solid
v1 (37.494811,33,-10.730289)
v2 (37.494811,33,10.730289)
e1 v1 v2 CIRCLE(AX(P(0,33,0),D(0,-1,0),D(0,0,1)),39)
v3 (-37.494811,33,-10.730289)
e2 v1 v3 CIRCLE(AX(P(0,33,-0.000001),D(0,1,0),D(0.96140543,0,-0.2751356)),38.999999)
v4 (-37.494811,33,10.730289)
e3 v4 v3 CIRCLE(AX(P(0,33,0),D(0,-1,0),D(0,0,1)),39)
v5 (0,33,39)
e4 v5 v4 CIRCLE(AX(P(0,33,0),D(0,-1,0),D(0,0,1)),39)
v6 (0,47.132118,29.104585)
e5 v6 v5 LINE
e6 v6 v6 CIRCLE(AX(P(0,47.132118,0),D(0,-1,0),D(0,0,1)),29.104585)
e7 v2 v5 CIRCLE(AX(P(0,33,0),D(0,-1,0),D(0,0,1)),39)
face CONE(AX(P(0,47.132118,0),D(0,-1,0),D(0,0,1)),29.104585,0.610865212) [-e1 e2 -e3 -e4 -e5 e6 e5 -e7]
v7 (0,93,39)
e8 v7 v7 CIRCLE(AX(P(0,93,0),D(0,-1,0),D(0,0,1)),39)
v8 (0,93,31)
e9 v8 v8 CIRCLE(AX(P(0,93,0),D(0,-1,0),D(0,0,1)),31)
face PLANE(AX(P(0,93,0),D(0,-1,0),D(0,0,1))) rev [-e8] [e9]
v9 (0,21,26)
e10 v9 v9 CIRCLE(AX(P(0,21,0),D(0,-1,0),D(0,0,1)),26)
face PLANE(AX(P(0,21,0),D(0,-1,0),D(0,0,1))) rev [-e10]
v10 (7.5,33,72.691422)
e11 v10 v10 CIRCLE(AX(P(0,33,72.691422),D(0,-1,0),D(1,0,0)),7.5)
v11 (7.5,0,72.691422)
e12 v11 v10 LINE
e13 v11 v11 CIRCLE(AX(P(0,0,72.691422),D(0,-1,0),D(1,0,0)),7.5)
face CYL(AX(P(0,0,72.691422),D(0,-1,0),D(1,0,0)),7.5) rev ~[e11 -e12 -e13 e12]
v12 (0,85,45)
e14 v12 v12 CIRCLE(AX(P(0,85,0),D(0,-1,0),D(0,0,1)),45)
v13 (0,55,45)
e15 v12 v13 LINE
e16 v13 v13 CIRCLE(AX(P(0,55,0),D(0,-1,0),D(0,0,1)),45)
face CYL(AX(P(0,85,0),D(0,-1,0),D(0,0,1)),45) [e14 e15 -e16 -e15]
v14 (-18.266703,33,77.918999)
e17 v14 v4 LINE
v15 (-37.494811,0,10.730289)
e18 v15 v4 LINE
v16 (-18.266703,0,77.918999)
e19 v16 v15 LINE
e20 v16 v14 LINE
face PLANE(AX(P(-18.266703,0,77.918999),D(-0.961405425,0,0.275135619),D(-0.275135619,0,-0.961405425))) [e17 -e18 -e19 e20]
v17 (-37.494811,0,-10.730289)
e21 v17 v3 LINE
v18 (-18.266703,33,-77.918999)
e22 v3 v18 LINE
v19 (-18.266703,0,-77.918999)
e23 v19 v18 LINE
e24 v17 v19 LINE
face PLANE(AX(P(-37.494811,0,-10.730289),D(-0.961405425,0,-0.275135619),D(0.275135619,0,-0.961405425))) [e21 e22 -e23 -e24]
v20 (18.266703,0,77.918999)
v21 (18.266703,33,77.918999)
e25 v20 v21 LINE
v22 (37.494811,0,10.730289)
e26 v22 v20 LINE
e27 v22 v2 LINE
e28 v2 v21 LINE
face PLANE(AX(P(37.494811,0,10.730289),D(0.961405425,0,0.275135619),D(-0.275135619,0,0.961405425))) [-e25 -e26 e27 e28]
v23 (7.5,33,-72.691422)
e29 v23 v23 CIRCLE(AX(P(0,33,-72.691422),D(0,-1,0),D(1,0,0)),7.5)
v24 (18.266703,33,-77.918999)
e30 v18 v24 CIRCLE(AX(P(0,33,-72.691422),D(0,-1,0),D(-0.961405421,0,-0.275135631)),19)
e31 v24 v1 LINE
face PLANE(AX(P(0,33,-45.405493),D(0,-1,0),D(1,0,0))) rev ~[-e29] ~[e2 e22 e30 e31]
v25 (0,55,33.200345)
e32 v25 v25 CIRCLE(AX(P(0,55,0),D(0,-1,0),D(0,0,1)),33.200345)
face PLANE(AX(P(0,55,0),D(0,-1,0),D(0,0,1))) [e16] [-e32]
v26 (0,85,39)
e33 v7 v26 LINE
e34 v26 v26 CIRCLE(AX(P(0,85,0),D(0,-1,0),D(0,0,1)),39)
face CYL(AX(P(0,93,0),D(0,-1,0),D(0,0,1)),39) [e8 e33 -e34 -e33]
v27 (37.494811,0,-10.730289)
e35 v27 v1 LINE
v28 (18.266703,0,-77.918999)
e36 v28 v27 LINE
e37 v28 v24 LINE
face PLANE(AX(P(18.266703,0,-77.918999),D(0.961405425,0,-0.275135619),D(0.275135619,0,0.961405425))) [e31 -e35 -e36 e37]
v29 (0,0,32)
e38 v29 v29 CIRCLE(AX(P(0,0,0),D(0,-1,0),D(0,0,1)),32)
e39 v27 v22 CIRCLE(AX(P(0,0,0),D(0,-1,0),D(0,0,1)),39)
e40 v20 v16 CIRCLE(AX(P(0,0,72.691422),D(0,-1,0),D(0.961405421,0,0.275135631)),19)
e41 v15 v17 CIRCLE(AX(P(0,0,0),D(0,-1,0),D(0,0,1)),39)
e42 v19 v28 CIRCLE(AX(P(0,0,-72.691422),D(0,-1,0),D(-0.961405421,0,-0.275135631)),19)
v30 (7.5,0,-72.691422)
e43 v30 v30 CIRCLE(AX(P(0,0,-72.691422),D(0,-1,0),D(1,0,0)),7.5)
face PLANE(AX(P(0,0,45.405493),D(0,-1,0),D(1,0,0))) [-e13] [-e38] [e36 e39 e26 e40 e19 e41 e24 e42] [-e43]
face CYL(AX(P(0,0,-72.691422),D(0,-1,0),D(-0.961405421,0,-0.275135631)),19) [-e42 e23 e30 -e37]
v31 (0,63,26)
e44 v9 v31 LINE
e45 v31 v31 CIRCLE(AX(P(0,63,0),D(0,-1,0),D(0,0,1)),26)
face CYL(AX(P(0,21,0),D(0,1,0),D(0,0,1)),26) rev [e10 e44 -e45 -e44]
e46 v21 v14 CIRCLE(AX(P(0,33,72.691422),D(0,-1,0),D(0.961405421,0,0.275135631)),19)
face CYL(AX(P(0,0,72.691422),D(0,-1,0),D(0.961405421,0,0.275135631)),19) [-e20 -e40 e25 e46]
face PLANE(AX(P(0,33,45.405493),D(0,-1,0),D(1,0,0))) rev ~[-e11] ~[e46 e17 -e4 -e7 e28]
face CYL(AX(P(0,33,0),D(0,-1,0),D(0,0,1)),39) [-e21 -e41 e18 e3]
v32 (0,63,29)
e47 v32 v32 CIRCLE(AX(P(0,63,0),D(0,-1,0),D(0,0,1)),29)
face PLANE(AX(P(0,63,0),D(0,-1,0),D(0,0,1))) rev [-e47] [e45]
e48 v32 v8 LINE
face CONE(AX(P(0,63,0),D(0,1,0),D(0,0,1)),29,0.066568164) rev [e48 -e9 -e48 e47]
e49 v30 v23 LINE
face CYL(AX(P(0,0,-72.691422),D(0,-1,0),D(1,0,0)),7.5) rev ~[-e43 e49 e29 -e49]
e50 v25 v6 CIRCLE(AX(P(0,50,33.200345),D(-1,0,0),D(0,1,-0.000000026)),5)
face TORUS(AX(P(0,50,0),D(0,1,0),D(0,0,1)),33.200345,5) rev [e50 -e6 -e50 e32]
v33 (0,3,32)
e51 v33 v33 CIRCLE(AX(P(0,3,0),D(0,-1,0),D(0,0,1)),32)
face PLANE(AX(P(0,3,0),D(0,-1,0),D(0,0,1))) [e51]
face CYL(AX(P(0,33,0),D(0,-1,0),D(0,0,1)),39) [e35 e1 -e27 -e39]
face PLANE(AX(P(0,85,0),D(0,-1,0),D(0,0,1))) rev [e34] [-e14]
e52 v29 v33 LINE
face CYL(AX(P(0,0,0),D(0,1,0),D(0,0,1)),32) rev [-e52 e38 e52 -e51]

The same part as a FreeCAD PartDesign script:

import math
import FreeCAD as App
import Part
import Sketcher

V = App.Vector
Q = App.Units.Quantity

doc = App.newDocument("Part")
body = doc.addObject("PartDesign::Body", "Body")

sketch1 = body.newObject("Sketcher::SketchObject", "Sketch")
sketch1.AttachmentSupport = (doc.getObject("YZ_Plane"), [""])
sketch1.MapMode = "FlatFace"
sketch1.addGeometry([
    Part.LineSegment(V(3, 32, 0), V(3, 0, 0)),
    Part.LineSegment(V(3, 0, 0), V(21, 0, 0)),
    Part.LineSegment(V(21, 0, 0), V(21, 26, 0)),
    Part.LineSegment(V(21, 26, 0), V(63, 26, 0)),
    Part.LineSegment(V(63, 26, 0), V(63, 29, 0)),
    Part.LineSegment(V(63, 29, 0), V(93, 31, 0)),
    Part.LineSegment(V(93, 31, 0), V(93, 39, 0)),
    Part.LineSegment(V(93, 39, 0), V(85, 39, 0)),
    Part.LineSegment(V(85, 39, 0), V(85, 45, 0)),
    Part.LineSegment(V(85, 45, 0), V(55, 45, 0)),
    Part.LineSegment(V(55, 45, 0), V(55, 33.2, 0)),
    Part.ArcOfCircle(Part.Circle(V(50, 33.2, 0), V(0, 0, 1), 5), math.radians(-125), math.radians(0)),
    Part.LineSegment(V(47.1, 29.1, 0), V(33, 39, 0)),
    Part.LineSegment(V(33, 39, 0), V(0, 39, 0)),
    Part.LineSegment(V(0, 39, 0), V(0, 32, 0)),
    Part.LineSegment(V(0, 32, 0), V(3, 32, 0)),
], False)
sketch1.addConstraint([
    Sketcher.Constraint("Coincident", 0, 2, 1, 1),
    Sketcher.Constraint("Coincident", 1, 2, 2, 1),
    Sketcher.Constraint("Coincident", 2, 2, 3, 1),
    Sketcher.Constraint("Coincident", 3, 2, 4, 1),
    Sketcher.Constraint("Coincident", 4, 2, 5, 1),
    Sketcher.Constraint("Coincident", 5, 2, 6, 1),
    Sketcher.Constraint("Coincident", 6, 2, 7, 1),
    Sketcher.Constraint("Coincident", 7, 2, 8, 1),
    Sketcher.Constraint("Coincident", 8, 2, 9, 1),
    Sketcher.Constraint("Coincident", 9, 2, 10, 1),
    Sketcher.Constraint("Tangent", 10, 2, 11, 2),
    Sketcher.Constraint("Tangent", 11, 1, 12, 1),
    Sketcher.Constraint("Coincident", 12, 2, 13, 1),
    Sketcher.Constraint("Coincident", 13, 2, 14, 1),
    Sketcher.Constraint("Coincident", 14, 2, 15, 1),
    Sketcher.Constraint("Coincident", 15, 2, 0, 1),
    Sketcher.Constraint("Vertical", 0),
    Sketcher.Constraint("Horizontal", 1),
    Sketcher.Constraint("Vertical", 2),
    Sketcher.Constraint("Horizontal", 3),
    Sketcher.Constraint("Vertical", 4),
    Sketcher.Constraint("Vertical", 6),
    Sketcher.Constraint("Horizontal", 7),
    Sketcher.Constraint("Vertical", 8),
    Sketcher.Constraint("Horizontal", 9),
    Sketcher.Constraint("Vertical", 10),
    Sketcher.Constraint("Horizontal", 13),
    Sketcher.Constraint("Vertical", 14),
    Sketcher.Constraint("Horizontal", 15),
    Sketcher.Constraint("PointOnObject", 0, 2, -1),
    Sketcher.Constraint("PointOnObject", 13, 2, -2),
    Sketcher.Constraint("Horizontal", 7, 2, 12, 2),
    Sketcher.Constraint("Equal", 15, 4),
    Sketcher.Constraint("Equal", 7, 6),
    Sketcher.Constraint("Radius", 11, 5.0),
    Sketcher.Constraint("DistanceX", 1, 1, 1, 2, 18.0),
    Sketcher.Constraint("DistanceX", 3, 1, 3, 2, 42.0),
    Sketcher.Constraint("DistanceX", 7, 2, 7, 1, 8.0),
    Sketcher.Constraint("DistanceX", 9, 2, 9, 1, 30.0),
    Sketcher.Constraint("DistanceX", 13, 2, 13, 1, 33.0),
    Sketcher.Constraint("DistanceX", 15, 1, 15, 2, 3.0),
    Sketcher.Constraint("DistanceY", 0, 2, 0, 1, 32.0),
    Sketcher.Constraint("DistanceY", 2, 1, 2, 2, 26.0),
    Sketcher.Constraint("DistanceY", 8, 1, 8, 2, 6.0),
    Sketcher.Constraint("DistanceY", 14, 2, 14, 1, 7.0),
    Sketcher.Constraint("Angle", 12, Q("145.000002 deg")),
    Sketcher.Constraint("DistanceX", -1, 1, 11, 3, 50.0),
])
revolution = body.newObject("PartDesign::Revolution", "Revolution")
revolution.Profile = sketch1
revolution.ReferenceAxis = (sketch1, ["H_Axis"])
revolution.Angle = 360

sketch2 = body.newObject("Sketcher::SketchObject", "Sketch001")
sketch2.AttachmentSupport = (doc.getObject("XZ_Plane"), [""])
sketch2.MapMode = "FlatFace"
sketch2.addGeometry([
    Part.LineSegment(V(37, 11, 0), V(18, 78, 0)),
    Part.ArcOfCircle(Part.Circle(V(0, 73, 0), V(0, 0, 1), 19), math.radians(16), math.radians(164)),
    Part.LineSegment(V(-18, 78, 0), V(-37, 11, 0)),
    Part.ArcOfCircle(Part.Circle(V(0, 0, 0), V(0, 0, 1), 39), math.radians(16), math.radians(164)),
    Part.Circle(V(0, 73, 0), V(0, 0, 1), 8),
    Part.ArcOfCircle(Part.Circle(V(0, 0, 0), V(0, 0, 1), 39), math.radians(-164), math.radians(-16)),
    Part.LineSegment(V(-37, -11, 0), V(-18, -78, 0)),
    Part.ArcOfCircle(Part.Circle(V(0, -73, 0), V(0, 0, 1), 19), math.radians(-164), math.radians(-16)),
    Part.LineSegment(V(18, -78, 0), V(37, -11, 0)),
    Part.Circle(V(0, -73, 0), V(0, 0, 1), 8),
], False)
sketch2.addConstraint([
    Sketcher.Constraint("Tangent", 0, 2, 1, 1),
    Sketcher.Constraint("Tangent", 1, 2, 2, 1),
    Sketcher.Constraint("Tangent", 2, 2, 3, 2),
    Sketcher.Constraint("Tangent", 3, 1, 0, 1),
    Sketcher.Constraint("Tangent", 5, 1, 6, 1),
    Sketcher.Constraint("Tangent", 6, 2, 7, 1),
    Sketcher.Constraint("Tangent", 7, 2, 8, 1),
    Sketcher.Constraint("Tangent", 8, 2, 5, 2),
    Sketcher.Constraint("Coincident", 3, 3, -1, 1),
    Sketcher.Constraint("Coincident", 5, 3, -1, 1),
    Sketcher.Constraint("Coincident", 4, 3, 1, 3),
    Sketcher.Constraint("Coincident", 9, 3, 7, 3),
    Sketcher.Constraint("Equal", 3, 5),
    Sketcher.Constraint("Equal", 1, 7),
    Sketcher.Constraint("Equal", 4, 9),
    Sketcher.Constraint("Symmetric", 1, 3, 7, 3, -1, 1),
    Sketcher.Constraint("PointOnObject", 1, 3, -2),
    Sketcher.Constraint("Diameter", 4, 15.0),
    Sketcher.Constraint("Radius", 1, 19.0),
    Sketcher.Constraint("Radius", 3, 38.999999),
    Sketcher.Constraint("DistanceY", -1, 1, 0, 2, 77.918999),
])
pad1 = body.newObject("PartDesign::Pad", "Pad")
pad1.Profile = sketch2
pad1.Length = 33
pad1.Reversed = True

doc.recompute()
